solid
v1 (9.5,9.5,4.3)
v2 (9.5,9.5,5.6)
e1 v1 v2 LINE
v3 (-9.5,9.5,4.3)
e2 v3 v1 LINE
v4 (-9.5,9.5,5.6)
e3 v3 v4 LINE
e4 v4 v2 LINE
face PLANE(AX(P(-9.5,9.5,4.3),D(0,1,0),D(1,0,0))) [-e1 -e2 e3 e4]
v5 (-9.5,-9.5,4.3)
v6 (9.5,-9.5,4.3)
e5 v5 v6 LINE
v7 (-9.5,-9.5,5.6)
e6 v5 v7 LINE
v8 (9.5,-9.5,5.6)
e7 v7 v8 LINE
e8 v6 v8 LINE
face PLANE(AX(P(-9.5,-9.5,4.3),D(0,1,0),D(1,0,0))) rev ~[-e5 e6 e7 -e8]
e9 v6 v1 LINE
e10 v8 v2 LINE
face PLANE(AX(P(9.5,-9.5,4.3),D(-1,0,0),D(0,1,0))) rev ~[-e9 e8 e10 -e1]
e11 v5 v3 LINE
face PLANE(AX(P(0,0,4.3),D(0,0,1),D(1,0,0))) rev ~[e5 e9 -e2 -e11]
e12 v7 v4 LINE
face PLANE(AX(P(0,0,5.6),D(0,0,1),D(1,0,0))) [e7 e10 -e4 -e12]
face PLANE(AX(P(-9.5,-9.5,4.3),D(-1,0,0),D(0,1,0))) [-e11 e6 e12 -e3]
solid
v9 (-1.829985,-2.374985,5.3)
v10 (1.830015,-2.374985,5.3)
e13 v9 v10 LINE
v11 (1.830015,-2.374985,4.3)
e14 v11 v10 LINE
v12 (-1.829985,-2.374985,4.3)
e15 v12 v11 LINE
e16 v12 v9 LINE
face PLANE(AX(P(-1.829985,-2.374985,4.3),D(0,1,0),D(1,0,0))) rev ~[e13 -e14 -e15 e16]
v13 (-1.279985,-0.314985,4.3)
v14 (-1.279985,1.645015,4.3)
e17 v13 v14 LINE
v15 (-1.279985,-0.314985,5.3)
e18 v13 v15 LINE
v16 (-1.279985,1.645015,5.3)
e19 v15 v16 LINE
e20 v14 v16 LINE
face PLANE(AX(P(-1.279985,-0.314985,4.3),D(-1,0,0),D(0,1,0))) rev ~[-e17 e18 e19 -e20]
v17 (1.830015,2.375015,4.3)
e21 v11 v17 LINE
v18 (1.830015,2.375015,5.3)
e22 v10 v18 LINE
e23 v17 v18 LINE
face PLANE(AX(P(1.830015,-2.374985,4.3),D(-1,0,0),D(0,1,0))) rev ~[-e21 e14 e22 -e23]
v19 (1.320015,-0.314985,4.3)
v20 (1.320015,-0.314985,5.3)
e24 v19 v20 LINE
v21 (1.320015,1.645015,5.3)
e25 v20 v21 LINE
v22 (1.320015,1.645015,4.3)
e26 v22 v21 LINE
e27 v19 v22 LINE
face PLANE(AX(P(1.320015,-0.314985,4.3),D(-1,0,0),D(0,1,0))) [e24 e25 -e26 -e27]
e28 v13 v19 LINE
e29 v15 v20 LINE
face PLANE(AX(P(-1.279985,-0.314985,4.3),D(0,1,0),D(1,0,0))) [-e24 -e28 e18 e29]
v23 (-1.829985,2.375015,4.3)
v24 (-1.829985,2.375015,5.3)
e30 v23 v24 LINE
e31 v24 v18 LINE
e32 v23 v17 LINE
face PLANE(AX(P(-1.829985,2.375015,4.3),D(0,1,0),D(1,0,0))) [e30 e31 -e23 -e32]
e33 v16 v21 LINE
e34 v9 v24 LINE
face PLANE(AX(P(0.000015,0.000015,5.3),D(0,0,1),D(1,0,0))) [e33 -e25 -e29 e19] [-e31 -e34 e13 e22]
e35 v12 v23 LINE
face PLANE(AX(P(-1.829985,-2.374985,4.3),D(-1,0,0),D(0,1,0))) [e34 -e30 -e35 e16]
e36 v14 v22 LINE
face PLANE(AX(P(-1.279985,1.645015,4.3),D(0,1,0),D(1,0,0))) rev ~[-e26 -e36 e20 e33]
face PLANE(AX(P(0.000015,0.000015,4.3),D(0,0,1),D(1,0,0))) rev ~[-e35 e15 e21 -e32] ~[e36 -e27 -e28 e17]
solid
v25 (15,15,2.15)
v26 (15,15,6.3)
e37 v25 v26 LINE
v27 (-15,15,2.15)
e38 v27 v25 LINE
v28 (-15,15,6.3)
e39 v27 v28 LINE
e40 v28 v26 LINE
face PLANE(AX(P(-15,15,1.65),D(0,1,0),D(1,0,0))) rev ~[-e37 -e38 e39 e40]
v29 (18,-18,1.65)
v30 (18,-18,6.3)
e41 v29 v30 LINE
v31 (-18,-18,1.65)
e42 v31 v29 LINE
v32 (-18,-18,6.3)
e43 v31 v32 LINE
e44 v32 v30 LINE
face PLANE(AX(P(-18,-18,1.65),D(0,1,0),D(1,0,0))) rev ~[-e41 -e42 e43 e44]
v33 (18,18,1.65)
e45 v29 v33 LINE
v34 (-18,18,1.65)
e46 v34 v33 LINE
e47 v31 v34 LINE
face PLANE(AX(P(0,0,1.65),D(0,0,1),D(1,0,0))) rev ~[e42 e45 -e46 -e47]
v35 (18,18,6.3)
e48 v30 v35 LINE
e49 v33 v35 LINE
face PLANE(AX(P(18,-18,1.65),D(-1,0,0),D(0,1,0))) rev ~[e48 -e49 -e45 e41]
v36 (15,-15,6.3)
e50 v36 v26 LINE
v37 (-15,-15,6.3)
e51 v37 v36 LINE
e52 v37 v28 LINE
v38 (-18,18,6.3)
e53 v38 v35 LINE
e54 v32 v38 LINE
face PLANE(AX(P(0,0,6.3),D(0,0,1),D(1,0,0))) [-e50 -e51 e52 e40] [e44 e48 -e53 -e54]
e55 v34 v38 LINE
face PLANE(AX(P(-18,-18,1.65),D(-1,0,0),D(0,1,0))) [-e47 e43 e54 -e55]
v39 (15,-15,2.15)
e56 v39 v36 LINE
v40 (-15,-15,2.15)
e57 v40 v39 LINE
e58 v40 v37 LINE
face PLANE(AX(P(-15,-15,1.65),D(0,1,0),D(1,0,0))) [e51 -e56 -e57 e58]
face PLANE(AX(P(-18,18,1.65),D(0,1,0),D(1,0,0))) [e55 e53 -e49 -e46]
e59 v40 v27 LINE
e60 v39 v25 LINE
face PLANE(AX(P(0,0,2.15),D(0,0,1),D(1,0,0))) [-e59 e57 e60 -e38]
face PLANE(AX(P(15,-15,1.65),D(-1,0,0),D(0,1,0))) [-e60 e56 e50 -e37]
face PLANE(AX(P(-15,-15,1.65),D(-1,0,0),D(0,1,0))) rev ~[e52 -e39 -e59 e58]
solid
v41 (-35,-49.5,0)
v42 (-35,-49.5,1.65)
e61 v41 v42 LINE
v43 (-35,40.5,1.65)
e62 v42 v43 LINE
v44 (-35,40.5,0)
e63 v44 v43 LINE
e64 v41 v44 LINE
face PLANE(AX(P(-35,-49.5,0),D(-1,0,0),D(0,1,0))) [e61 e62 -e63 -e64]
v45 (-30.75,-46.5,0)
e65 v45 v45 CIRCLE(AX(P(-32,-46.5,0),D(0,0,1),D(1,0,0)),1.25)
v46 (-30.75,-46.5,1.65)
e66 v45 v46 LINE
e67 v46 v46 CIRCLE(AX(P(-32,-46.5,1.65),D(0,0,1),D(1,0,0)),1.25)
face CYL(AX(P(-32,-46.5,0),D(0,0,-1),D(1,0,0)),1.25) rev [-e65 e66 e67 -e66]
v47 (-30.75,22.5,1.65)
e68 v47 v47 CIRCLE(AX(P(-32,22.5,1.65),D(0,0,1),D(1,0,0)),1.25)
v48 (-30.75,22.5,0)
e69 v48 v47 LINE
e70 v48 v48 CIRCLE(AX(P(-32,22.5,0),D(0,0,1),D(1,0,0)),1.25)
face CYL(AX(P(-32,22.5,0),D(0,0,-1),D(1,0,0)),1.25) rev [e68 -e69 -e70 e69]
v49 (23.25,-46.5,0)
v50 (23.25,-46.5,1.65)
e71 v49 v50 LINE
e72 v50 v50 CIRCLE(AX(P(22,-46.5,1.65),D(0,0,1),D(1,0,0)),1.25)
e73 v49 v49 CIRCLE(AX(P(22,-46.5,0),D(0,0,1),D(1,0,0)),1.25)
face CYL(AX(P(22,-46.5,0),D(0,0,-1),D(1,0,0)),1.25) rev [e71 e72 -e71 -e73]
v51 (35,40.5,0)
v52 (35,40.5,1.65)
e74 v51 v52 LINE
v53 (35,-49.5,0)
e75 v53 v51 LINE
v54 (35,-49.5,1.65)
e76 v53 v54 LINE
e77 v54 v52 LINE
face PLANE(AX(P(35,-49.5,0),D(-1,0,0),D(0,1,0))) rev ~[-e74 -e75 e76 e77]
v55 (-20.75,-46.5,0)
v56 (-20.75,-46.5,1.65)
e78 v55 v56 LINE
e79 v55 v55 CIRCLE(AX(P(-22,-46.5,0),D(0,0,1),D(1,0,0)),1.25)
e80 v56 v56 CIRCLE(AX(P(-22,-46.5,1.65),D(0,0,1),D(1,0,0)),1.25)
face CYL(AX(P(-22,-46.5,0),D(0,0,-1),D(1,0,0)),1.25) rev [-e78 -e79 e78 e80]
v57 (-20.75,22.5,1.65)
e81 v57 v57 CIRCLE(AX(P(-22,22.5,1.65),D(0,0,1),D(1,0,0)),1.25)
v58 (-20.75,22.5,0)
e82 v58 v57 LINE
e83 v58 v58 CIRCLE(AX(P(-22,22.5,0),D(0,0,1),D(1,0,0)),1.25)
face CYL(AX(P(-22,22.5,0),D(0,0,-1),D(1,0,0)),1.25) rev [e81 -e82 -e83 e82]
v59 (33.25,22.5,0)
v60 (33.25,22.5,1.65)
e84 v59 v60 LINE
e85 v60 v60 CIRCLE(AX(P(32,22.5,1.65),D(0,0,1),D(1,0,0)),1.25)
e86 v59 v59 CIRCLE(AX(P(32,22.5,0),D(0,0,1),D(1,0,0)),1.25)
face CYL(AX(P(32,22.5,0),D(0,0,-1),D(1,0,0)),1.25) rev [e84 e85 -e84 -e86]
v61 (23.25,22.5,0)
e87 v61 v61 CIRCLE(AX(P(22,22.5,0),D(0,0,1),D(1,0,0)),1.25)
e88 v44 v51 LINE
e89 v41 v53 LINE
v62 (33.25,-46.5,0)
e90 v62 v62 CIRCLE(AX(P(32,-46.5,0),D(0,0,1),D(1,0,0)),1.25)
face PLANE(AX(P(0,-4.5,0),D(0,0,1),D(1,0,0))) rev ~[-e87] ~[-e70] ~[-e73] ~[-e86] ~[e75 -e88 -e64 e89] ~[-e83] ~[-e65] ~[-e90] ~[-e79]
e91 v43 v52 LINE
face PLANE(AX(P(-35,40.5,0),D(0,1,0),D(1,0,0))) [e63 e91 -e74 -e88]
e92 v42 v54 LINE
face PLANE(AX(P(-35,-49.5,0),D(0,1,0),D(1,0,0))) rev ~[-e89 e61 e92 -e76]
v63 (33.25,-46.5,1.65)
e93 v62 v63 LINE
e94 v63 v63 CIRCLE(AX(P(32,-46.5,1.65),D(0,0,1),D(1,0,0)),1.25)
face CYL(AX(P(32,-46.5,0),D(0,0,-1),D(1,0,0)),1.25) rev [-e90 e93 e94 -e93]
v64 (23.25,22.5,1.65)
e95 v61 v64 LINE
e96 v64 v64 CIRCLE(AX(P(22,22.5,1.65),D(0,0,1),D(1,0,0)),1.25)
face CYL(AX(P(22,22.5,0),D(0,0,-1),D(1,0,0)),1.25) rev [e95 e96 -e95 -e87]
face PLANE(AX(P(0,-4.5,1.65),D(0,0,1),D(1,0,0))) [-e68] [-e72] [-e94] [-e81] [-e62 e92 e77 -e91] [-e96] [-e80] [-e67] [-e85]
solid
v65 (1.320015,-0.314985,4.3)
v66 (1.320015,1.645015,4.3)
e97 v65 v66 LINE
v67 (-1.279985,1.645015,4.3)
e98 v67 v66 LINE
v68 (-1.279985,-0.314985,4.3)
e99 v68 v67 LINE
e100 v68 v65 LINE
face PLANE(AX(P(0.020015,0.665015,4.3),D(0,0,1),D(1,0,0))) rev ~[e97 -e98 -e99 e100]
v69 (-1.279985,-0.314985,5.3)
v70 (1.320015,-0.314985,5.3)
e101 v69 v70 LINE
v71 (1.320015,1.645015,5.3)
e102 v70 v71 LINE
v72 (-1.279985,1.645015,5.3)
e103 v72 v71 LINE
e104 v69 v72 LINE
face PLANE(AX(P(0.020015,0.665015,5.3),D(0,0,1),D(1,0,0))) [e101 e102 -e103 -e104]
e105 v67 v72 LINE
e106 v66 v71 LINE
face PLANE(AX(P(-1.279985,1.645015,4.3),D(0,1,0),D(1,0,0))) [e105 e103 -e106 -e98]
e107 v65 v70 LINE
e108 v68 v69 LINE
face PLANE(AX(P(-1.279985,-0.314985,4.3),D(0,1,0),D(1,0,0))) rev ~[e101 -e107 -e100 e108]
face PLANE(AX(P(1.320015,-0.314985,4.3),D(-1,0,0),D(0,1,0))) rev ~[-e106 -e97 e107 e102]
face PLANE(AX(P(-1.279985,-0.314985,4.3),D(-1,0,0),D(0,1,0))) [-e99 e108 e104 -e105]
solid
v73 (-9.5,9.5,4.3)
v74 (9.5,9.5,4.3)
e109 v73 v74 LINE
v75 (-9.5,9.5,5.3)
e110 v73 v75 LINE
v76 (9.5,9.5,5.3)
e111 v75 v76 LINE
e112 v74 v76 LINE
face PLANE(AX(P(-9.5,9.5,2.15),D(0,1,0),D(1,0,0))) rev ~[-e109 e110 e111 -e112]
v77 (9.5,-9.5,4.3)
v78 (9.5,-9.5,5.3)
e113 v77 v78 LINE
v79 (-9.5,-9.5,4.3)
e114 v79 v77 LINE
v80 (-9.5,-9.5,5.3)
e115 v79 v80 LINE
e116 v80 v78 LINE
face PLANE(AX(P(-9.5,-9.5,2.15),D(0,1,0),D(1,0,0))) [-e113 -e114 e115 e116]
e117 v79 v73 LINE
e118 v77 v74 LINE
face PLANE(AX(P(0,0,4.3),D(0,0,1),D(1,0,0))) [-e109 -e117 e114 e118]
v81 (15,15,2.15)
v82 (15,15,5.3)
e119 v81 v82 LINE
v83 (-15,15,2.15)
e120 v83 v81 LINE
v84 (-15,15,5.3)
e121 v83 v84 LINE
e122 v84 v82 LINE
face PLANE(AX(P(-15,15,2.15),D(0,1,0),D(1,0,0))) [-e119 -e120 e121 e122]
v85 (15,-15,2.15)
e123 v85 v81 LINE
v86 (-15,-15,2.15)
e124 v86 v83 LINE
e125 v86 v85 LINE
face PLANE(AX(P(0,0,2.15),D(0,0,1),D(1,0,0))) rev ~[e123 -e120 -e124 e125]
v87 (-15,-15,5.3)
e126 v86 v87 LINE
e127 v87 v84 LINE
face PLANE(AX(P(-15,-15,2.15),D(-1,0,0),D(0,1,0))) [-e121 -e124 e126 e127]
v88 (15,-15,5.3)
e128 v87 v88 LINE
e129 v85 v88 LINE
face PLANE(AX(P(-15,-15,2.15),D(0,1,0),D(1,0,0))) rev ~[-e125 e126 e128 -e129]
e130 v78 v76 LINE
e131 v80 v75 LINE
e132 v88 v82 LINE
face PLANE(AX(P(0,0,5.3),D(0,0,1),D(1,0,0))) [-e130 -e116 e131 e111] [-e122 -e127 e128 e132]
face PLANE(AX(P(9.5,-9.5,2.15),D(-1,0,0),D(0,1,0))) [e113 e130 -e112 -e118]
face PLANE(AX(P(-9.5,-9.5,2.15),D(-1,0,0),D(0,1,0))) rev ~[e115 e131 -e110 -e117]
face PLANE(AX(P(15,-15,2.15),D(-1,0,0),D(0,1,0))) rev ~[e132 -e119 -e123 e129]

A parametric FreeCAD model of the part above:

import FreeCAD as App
import Part
import Sketcher


def add_polygon(sketch, points):
    """Adds a closed chain of lines whose ends are joined by coincident constraints."""
    first, n = sketch.GeometryCount, len(points)
    for a, b in zip(points, points[1:] + points[:1]):
        sketch.addGeometry(Part.LineSegment(App.Vector(*a, 0), App.Vector(*b, 0)), False)
    for i in range(n):
        sketch.addConstraint(Sketcher.Constraint("Coincident", first + i, 2, first + (i + 1) % n, 1))

doc = App.newDocument("Part")
body = doc.addObject("PartDesign::Body", "Body")

# Sketch on XY plane
sketch1 = doc.addObject("Sketcher::SketchObject", "Sketch")
body.addObject(sketch1)
sketch1.AttachmentSupport = (doc.XY_Plane, [""])
sketch1.MapMode = "FlatFace"
add_polygon(sketch1, [(-35, 40.5), (-35, -49.5), (35, -49.5), (35, 40.5)])  # lines 0-3
sketch1.addGeometry(Part.Circle(App.Vector(-32, -46.5, 0), App.Vector(0, 0, 1), 1.25), False)  # 4
sketch1.addGeometry(Part.Circle(App.Vector(-22, -46.5, 0), App.Vector(0, 0, 1), 1.25), False)  # 5
sketch1.addGeometry(Part.Circle(App.Vector(22, -46.5, 0), App.Vector(0, 0, 1), 1.25), False)  # 6
sketch1.addGeometry(Part.Circle(App.Vector(32, -46.5, 0), App.Vector(0, 0, 1), 1.25), False)  # 7
sketch1.addGeometry(Part.Circle(App.Vector(-32, 22.5, 0), App.Vector(0, 0, 1), 1.25), False)  # 8
sketch1.addGeometry(Part.Circle(App.Vector(-22, 22.5, 0), App.Vector(0, 0, 1), 1.25), False)  # 9
sketch1.addGeometry(Part.Circle(App.Vector(22, 22.5, 0), App.Vector(0, 0, 1), 1.25), False)  # 10
sketch1.addGeometry(Part.Circle(App.Vector(32, 22.5, 0), App.Vector(0, 0, 1), 1.25), False)  # 11
sketch1.addConstraint([
    Sketcher.Constraint("Vertical", 0),
    Sketcher.Constraint("Horizontal", 1),
    Sketcher.Constraint("Vertical", 2),
    Sketcher.Constraint("Horizontal", 3),
    Sketcher.Constraint("Equal", 4, 5),
    Sketcher.Constraint("Equal", 5, 6),
    Sketcher.Constraint("Equal", 6, 7),
    Sketcher.Constraint("Equal", 7, 8),
    Sketcher.Constraint("Equal", 8, 9),
    Sketcher.Constraint("Equal", 9, 10),
    Sketcher.Constraint("Equal", 10, 11),
    Sketcher.Constraint("Symmetric", 5, 3, 6, 3, -2),
    Sketcher.Constraint("Symmetric", 4, 3, 7, 3, -2),
    Sketcher.Constraint("Symmetric", 9, 3, 10, 3, -2),
    Sketcher.Constraint("Symmetric", 8, 3, 11, 3, -2),
    Sketcher.Constraint("Horizontal", 4, 3, 5, 3),
    Sketcher.Constraint("Horizontal", 8, 3, 9, 3),
    Sketcher.Constraint("Vertical", 4, 3, 8, 3),
    Sketcher.Constraint("Vertical", 5, 3, 9, 3),
    Sketcher.Constraint("Diameter", 4, 2.5),
    Sketcher.Constraint("DistanceX", 1, 1, 1, 2, 70.0),
    Sketcher.Constraint("DistanceY", 0, 2, 0, 1, 90.0),
    Sketcher.Constraint("DistanceX", 4, 3, -1, 1, 32.0),
    Sketcher.Constraint("DistanceX", 5, 3, -1, 1, 22.0),
    Sketcher.Constraint("DistanceX", 0, 2, -1, 1, 35.0),
    Sketcher.Constraint("DistanceY", 4, 3, 8, 3, 69.0),
    Sketcher.Constraint("DistanceY", 0, 2, 4, 3, 3.0),
    Sketcher.Constraint("DistanceY", 4, 3, -1, 1, 46.5),
])
pad1 = doc.addObject("PartDesign::Pad", "Pad")
body.addObject(pad1)
pad1.Profile = sketch1
pad1.Length = 1.65
body2 = doc.addObject("PartDesign::Body", "Body001")

# Sketch on XY plane
sketch2 = doc.addObject("Sketcher::SketchObject", "Sketch001")
body2.addObject(sketch2)
sketch2.AttachmentSupport = (doc.getObject("XY_Plane001"), [""])
sketch2.MapMode = "FlatFace"
sketch2.AttachmentOffset = App.Placement(App.Vector(0, 0, 1.65), App.Rotation())
add_polygon(sketch2, [(-18, 18), (-18, -18), (18, -18), (18, 18)])  # lines 0-3
add_polygon(sketch2, [(15, -15), (-15, -15), (-15, 15), (15, 15)])  # lines 4-7
sketch2.addConstraint([
    Sketcher.Constraint("Vertical", 0),
    Sketcher.Constraint("Horizontal", 1),
    Sketcher.Constraint("Vertical", 2),
    Sketcher.Constraint("Horizontal", 3),
    Sketcher.Constraint("Horizontal", 4),
    Sketcher.Constraint("Vertical", 5),
    Sketcher.Constraint("Horizontal", 6),
    Sketcher.Constraint("Vertical", 7),
    Sketcher.Constraint("Symmetric", 0, 2, 2, 2, -1, 1),
    Sketcher.Constraint("Symmetric", 4, 2, 6, 2, -1, 1),
    Sketcher.Constraint("Equal", 3, 0),
    Sketcher.Constraint("Equal", 6, 5),
    Sketcher.Constraint("DistanceX", 1, 1, 1, 2, 36.0),
    Sketcher.Constraint("DistanceX", 4, 2, 4, 1, 30.0),
])
pad2 = doc.addObject("PartDesign::Pad", "Pad001")
body2.addObject(pad2)
pad2.Profile = sketch2
pad2.Length = 4.65

# Sketch on XY plane
sketch3 = doc.addObject("Sketcher::SketchObject", "Sketch002")
body2.addObject(sketch3)
sketch3.AttachmentSupport = (doc.getObject("XY_Plane001"), [""])
sketch3.MapMode = "FlatFace"
sketch3.AttachmentOffset = App.Placement(App.Vector(0, 0, 1.65), App.Rotation())
add_polygon(sketch3, [(-15, 15), (-15, -15), (15, -15), (15, 15)])  # lines 0-3
sketch3.addConstraint([
    Sketcher.Constraint("Vertical", 0),
    Sketcher.Constraint("Horizontal", 1),
    Sketcher.Constraint("Vertical", 2),
    Sketcher.Constraint("Horizontal", 3),
    Sketcher.Constraint("Symmetric", 0, 2, 2, 2, -1, 1),
    Sketcher.Constraint("Equal", 3, 0),
    Sketcher.Constraint("DistanceX", 1, 1, 1, 2, 30.0),
])
pad3 = doc.addObject("PartDesign::Pad", "Pad002")
body2.addObject(pad3)
pad3.Profile = sketch3
pad3.Length = 0.5
body3 = doc.addObject("PartDesign::Body", "Body002")

# Sketch on XY plane
sketch4 = doc.addObject("Sketcher::SketchObject", "Sketch003")
body3.addObject(sketch4)
sketch4.AttachmentSupport = (doc.getObject("XY_Plane002"), [""])
sketch4.MapMode = "FlatFace"
sketch4.AttachmentOffset = App.Placement(App.Vector(0, 0, 2.15), App.Rotation())
add_polygon(sketch4, [(-15, 15), (-15, -15), (15, -15), (15, 15)])  # lines 0-3
add_polygon(sketch4, [(9.5, -9.5), (-9.5, -9.5), (-9.5, 9.5), (9.5, 9.5)])  # lines 4-7
sketch4.addConstraint([
    Sketcher.Constraint("Vertical", 0),
    Sketcher.Constraint("Horizontal", 1),
    Sketcher.Constraint("Vertical", 2),
    Sketcher.Constraint("Horizontal", 3),
    Sketcher.Constraint("Horizontal", 4),
    Sketcher.Constraint("Vertical", 5),
    Sketcher.Constraint("Horizontal", 6),
    Sketcher.Constraint("Vertical", 7),
    Sketcher.Constraint("Symmetric", 0, 2, 2, 2, -1, 1),
    Sketcher.Constraint("Symmetric", 4, 2, 6, 2, -1, 1),
    Sketcher.Constraint("Equal", 3, 0),
    Sketcher.Constraint("Equal", 6, 5),
    Sketcher.Constraint("DistanceX", 1, 1, 1, 2, 30.0),
    Sketcher.Constraint("DistanceX", 4, 2, 4, 1, 19.0),
])
pad4 = doc.addObject("PartDesign::Pad", "Pad003")
body3.addObject(pad4)
pad4.Profile = sketch4
pad4.Length = 3.15

# Sketch on XY plane
sketch5 = doc.addObject("Sketcher::SketchObject", "Sketch004")
body3.addObject(sketch5)
sketch5.AttachmentSupport = (doc.getObject("XY_Plane002"), [""])
sketch5.MapMode = "FlatFace"
sketch5.AttachmentOffset = App.Placement(App.Vector(0, 0, 2.15), App.Rotation())
add_polygon(sketch5, [(-9.5, 9.5), (-9.5, -9.5), (9.5, -9.5), (9.5, 9.5)])  # lines 0-3
sketch5.addConstraint([
    Sketcher.Constraint("Vertical", 0),
    Sketcher.Constraint("Horizontal", 1),
    Sketcher.Constraint("Vertical", 2),
    Sketcher.Constraint("Horizontal", 3),
    Sketcher.Constraint("Symmetric", 0, 2, 2, 2, -1, 1),
    Sketcher.Constraint("Equal", 3, 0),
    Sketcher.Constraint("DistanceX", 1, 1, 1, 2, 19.0),
])
pad5 = doc.addObject("PartDesign::Pad", "Pad004")
body3.addObject(pad5)
pad5.Profile = sketch5
pad5.Length = 2.15
body4 = doc.addObject("PartDesign::Body", "Body003")

# Sketch on XY plane
sketch6 = doc.addObject("Sketcher::SketchObject", "Sketch005")
body4.addObject(sketch6)
sketch6.AttachmentSupport = (doc.getObject("XY_Plane003"), [""])
sketch6.MapMode = "FlatFace"
sketch6.AttachmentOffset = App.Placement(App.Vector(0, 0, 4.3), App.Rotation())
add_polygon(sketch6, [(-1.829985, 2.375015), (-1.829985, -2.374985), (1.830015, -2.374985), (1.830015, 2.375015)])  # lines 0-3
add_polygon(sketch6, [(1.320015, -0.314985), (-1.279985, -0.314985), (-1.279985, 1.645015), (1.320015, 1.645015)])  # lines 4-7
sketch6.addConstraint([
    Sketcher.Constraint("Vertical", 0),
    Sketcher.Constraint("Horizontal", 1),
    Sketcher.Constraint("Vertical", 2),
    Sketcher.Constraint("Horizontal", 3),
    Sketcher.Constraint("Horizontal", 4),
    Sketcher.Constraint("Vertical", 5),
    Sketcher.Constraint("Horizontal", 6),
    Sketcher.Constraint("Vertical", 7),
    Sketcher.Constraint("DistanceX", 4, 2, 4, 1, 2.6),
    Sketcher.Constraint("DistanceX", 1, 1, 1, 2, 3.66),
    Sketcher.Constraint("DistanceY", 0, 2, 0, 1, 4.75),
    Sketcher.Constraint("DistanceY", 5, 1, 5, 2, 1.96),
    Sketcher.Constraint("DistanceX", 0, 2, 4, 2, 0.55),
    Sketcher.Constraint("DistanceY", 0, 2, 4, 2, 2.06),
    Sketcher.Constraint("DistanceX", 0, 2, -1, 1, 1.829985),
    Sketcher.Constraint("DistanceY", 0, 2, -1, 1, 2.374985),
])
pad6 = doc.addObject("PartDesign::Pad", "Pad005")
body4.addObject(pad6)
pad6.Profile = sketch6
pad6.Length = 1
body5 = doc.addObject("PartDesign::Body", "Body004")

# Sketch on XY plane
sketch7 = doc.addObject("Sketcher::SketchObject", "Sketch006")
body5.addObject(sketch7)
sketch7.AttachmentSupport = (doc.getObject("XY_Plane004"), [""])
sketch7.MapMode = "FlatFace"
sketch7.AttachmentOffset = App.Placement(App.Vector(0, 0, 4.3), App.Rotation())
add_polygon(sketch7, [(-1.279985, 1.645015), (-1.279985, -0.314985), (1.320015, -0.314985), (1.320015, 1.645015)])  # lines 0-3
sketch7.addConstraint([
    Sketcher.Constraint("Vertical", 0),
    Sketcher.Constraint("Horizontal", 1),
    Sketcher.Constraint("Vertical", 2),
    Sketcher.Constraint("Horizontal", 3),
    Sketcher.Constraint("DistanceX", 1, 1, 1, 2, 2.6),
    Sketcher.Constraint("DistanceY", 0, 2, 0, 1, 1.96),
    Sketcher.Constraint("DistanceX", 0, 2, -1, 1, 1.279985),
    Sketcher.Constraint("DistanceY", 0, 2, -1, 1, 0.314985),
])
pad7 = doc.addObject("PartDesign::Pad", "Pad006")
body5.addObject(pad7)
pad7.Profile = sketch7
pad7.Length = 1
body6 = doc.addObject("PartDesign::Body", "Body005")

# Sketch on XY plane
sketch8 = doc.addObject("Sketcher::SketchObject", "Sketch007")
body6.addObject(sketch8)
sketch8.AttachmentSupport = (doc.getObject("XY_Plane005"), [""])
sketch8.MapMode = "FlatFace"
sketch8.AttachmentOffset = App.Placement(App.Vector(0, 0, 4.3), App.Rotation())
add_polygon(sketch8, [(-9.5, 9.5), (-9.5, -9.5), (9.5, -9.5), (9.5, 9.5)])  # lines 0-3
sketch8.addConstraint([
    Sketcher.Constraint("Vertical", 0),
    Sketcher.Constraint("Horizontal", 1),
    Sketcher.Constraint("Vertical", 2),
    Sketcher.Constraint("Horizontal", 3),
    Sketcher.Constraint("Symmetric", 0, 2, 2, 2, -1, 1),
    Sketcher.Constraint("Equal", 3, 0),
    Sketcher.Constraint("DistanceX", 1, 1, 1, 2, 19.0),
])
pad8 = doc.addObject("PartDesign::Pad", "Pad007")
body6.addObject(pad8)
pad8.Profile = sketch8
pad8.Length = 1.3

doc.recompute()
